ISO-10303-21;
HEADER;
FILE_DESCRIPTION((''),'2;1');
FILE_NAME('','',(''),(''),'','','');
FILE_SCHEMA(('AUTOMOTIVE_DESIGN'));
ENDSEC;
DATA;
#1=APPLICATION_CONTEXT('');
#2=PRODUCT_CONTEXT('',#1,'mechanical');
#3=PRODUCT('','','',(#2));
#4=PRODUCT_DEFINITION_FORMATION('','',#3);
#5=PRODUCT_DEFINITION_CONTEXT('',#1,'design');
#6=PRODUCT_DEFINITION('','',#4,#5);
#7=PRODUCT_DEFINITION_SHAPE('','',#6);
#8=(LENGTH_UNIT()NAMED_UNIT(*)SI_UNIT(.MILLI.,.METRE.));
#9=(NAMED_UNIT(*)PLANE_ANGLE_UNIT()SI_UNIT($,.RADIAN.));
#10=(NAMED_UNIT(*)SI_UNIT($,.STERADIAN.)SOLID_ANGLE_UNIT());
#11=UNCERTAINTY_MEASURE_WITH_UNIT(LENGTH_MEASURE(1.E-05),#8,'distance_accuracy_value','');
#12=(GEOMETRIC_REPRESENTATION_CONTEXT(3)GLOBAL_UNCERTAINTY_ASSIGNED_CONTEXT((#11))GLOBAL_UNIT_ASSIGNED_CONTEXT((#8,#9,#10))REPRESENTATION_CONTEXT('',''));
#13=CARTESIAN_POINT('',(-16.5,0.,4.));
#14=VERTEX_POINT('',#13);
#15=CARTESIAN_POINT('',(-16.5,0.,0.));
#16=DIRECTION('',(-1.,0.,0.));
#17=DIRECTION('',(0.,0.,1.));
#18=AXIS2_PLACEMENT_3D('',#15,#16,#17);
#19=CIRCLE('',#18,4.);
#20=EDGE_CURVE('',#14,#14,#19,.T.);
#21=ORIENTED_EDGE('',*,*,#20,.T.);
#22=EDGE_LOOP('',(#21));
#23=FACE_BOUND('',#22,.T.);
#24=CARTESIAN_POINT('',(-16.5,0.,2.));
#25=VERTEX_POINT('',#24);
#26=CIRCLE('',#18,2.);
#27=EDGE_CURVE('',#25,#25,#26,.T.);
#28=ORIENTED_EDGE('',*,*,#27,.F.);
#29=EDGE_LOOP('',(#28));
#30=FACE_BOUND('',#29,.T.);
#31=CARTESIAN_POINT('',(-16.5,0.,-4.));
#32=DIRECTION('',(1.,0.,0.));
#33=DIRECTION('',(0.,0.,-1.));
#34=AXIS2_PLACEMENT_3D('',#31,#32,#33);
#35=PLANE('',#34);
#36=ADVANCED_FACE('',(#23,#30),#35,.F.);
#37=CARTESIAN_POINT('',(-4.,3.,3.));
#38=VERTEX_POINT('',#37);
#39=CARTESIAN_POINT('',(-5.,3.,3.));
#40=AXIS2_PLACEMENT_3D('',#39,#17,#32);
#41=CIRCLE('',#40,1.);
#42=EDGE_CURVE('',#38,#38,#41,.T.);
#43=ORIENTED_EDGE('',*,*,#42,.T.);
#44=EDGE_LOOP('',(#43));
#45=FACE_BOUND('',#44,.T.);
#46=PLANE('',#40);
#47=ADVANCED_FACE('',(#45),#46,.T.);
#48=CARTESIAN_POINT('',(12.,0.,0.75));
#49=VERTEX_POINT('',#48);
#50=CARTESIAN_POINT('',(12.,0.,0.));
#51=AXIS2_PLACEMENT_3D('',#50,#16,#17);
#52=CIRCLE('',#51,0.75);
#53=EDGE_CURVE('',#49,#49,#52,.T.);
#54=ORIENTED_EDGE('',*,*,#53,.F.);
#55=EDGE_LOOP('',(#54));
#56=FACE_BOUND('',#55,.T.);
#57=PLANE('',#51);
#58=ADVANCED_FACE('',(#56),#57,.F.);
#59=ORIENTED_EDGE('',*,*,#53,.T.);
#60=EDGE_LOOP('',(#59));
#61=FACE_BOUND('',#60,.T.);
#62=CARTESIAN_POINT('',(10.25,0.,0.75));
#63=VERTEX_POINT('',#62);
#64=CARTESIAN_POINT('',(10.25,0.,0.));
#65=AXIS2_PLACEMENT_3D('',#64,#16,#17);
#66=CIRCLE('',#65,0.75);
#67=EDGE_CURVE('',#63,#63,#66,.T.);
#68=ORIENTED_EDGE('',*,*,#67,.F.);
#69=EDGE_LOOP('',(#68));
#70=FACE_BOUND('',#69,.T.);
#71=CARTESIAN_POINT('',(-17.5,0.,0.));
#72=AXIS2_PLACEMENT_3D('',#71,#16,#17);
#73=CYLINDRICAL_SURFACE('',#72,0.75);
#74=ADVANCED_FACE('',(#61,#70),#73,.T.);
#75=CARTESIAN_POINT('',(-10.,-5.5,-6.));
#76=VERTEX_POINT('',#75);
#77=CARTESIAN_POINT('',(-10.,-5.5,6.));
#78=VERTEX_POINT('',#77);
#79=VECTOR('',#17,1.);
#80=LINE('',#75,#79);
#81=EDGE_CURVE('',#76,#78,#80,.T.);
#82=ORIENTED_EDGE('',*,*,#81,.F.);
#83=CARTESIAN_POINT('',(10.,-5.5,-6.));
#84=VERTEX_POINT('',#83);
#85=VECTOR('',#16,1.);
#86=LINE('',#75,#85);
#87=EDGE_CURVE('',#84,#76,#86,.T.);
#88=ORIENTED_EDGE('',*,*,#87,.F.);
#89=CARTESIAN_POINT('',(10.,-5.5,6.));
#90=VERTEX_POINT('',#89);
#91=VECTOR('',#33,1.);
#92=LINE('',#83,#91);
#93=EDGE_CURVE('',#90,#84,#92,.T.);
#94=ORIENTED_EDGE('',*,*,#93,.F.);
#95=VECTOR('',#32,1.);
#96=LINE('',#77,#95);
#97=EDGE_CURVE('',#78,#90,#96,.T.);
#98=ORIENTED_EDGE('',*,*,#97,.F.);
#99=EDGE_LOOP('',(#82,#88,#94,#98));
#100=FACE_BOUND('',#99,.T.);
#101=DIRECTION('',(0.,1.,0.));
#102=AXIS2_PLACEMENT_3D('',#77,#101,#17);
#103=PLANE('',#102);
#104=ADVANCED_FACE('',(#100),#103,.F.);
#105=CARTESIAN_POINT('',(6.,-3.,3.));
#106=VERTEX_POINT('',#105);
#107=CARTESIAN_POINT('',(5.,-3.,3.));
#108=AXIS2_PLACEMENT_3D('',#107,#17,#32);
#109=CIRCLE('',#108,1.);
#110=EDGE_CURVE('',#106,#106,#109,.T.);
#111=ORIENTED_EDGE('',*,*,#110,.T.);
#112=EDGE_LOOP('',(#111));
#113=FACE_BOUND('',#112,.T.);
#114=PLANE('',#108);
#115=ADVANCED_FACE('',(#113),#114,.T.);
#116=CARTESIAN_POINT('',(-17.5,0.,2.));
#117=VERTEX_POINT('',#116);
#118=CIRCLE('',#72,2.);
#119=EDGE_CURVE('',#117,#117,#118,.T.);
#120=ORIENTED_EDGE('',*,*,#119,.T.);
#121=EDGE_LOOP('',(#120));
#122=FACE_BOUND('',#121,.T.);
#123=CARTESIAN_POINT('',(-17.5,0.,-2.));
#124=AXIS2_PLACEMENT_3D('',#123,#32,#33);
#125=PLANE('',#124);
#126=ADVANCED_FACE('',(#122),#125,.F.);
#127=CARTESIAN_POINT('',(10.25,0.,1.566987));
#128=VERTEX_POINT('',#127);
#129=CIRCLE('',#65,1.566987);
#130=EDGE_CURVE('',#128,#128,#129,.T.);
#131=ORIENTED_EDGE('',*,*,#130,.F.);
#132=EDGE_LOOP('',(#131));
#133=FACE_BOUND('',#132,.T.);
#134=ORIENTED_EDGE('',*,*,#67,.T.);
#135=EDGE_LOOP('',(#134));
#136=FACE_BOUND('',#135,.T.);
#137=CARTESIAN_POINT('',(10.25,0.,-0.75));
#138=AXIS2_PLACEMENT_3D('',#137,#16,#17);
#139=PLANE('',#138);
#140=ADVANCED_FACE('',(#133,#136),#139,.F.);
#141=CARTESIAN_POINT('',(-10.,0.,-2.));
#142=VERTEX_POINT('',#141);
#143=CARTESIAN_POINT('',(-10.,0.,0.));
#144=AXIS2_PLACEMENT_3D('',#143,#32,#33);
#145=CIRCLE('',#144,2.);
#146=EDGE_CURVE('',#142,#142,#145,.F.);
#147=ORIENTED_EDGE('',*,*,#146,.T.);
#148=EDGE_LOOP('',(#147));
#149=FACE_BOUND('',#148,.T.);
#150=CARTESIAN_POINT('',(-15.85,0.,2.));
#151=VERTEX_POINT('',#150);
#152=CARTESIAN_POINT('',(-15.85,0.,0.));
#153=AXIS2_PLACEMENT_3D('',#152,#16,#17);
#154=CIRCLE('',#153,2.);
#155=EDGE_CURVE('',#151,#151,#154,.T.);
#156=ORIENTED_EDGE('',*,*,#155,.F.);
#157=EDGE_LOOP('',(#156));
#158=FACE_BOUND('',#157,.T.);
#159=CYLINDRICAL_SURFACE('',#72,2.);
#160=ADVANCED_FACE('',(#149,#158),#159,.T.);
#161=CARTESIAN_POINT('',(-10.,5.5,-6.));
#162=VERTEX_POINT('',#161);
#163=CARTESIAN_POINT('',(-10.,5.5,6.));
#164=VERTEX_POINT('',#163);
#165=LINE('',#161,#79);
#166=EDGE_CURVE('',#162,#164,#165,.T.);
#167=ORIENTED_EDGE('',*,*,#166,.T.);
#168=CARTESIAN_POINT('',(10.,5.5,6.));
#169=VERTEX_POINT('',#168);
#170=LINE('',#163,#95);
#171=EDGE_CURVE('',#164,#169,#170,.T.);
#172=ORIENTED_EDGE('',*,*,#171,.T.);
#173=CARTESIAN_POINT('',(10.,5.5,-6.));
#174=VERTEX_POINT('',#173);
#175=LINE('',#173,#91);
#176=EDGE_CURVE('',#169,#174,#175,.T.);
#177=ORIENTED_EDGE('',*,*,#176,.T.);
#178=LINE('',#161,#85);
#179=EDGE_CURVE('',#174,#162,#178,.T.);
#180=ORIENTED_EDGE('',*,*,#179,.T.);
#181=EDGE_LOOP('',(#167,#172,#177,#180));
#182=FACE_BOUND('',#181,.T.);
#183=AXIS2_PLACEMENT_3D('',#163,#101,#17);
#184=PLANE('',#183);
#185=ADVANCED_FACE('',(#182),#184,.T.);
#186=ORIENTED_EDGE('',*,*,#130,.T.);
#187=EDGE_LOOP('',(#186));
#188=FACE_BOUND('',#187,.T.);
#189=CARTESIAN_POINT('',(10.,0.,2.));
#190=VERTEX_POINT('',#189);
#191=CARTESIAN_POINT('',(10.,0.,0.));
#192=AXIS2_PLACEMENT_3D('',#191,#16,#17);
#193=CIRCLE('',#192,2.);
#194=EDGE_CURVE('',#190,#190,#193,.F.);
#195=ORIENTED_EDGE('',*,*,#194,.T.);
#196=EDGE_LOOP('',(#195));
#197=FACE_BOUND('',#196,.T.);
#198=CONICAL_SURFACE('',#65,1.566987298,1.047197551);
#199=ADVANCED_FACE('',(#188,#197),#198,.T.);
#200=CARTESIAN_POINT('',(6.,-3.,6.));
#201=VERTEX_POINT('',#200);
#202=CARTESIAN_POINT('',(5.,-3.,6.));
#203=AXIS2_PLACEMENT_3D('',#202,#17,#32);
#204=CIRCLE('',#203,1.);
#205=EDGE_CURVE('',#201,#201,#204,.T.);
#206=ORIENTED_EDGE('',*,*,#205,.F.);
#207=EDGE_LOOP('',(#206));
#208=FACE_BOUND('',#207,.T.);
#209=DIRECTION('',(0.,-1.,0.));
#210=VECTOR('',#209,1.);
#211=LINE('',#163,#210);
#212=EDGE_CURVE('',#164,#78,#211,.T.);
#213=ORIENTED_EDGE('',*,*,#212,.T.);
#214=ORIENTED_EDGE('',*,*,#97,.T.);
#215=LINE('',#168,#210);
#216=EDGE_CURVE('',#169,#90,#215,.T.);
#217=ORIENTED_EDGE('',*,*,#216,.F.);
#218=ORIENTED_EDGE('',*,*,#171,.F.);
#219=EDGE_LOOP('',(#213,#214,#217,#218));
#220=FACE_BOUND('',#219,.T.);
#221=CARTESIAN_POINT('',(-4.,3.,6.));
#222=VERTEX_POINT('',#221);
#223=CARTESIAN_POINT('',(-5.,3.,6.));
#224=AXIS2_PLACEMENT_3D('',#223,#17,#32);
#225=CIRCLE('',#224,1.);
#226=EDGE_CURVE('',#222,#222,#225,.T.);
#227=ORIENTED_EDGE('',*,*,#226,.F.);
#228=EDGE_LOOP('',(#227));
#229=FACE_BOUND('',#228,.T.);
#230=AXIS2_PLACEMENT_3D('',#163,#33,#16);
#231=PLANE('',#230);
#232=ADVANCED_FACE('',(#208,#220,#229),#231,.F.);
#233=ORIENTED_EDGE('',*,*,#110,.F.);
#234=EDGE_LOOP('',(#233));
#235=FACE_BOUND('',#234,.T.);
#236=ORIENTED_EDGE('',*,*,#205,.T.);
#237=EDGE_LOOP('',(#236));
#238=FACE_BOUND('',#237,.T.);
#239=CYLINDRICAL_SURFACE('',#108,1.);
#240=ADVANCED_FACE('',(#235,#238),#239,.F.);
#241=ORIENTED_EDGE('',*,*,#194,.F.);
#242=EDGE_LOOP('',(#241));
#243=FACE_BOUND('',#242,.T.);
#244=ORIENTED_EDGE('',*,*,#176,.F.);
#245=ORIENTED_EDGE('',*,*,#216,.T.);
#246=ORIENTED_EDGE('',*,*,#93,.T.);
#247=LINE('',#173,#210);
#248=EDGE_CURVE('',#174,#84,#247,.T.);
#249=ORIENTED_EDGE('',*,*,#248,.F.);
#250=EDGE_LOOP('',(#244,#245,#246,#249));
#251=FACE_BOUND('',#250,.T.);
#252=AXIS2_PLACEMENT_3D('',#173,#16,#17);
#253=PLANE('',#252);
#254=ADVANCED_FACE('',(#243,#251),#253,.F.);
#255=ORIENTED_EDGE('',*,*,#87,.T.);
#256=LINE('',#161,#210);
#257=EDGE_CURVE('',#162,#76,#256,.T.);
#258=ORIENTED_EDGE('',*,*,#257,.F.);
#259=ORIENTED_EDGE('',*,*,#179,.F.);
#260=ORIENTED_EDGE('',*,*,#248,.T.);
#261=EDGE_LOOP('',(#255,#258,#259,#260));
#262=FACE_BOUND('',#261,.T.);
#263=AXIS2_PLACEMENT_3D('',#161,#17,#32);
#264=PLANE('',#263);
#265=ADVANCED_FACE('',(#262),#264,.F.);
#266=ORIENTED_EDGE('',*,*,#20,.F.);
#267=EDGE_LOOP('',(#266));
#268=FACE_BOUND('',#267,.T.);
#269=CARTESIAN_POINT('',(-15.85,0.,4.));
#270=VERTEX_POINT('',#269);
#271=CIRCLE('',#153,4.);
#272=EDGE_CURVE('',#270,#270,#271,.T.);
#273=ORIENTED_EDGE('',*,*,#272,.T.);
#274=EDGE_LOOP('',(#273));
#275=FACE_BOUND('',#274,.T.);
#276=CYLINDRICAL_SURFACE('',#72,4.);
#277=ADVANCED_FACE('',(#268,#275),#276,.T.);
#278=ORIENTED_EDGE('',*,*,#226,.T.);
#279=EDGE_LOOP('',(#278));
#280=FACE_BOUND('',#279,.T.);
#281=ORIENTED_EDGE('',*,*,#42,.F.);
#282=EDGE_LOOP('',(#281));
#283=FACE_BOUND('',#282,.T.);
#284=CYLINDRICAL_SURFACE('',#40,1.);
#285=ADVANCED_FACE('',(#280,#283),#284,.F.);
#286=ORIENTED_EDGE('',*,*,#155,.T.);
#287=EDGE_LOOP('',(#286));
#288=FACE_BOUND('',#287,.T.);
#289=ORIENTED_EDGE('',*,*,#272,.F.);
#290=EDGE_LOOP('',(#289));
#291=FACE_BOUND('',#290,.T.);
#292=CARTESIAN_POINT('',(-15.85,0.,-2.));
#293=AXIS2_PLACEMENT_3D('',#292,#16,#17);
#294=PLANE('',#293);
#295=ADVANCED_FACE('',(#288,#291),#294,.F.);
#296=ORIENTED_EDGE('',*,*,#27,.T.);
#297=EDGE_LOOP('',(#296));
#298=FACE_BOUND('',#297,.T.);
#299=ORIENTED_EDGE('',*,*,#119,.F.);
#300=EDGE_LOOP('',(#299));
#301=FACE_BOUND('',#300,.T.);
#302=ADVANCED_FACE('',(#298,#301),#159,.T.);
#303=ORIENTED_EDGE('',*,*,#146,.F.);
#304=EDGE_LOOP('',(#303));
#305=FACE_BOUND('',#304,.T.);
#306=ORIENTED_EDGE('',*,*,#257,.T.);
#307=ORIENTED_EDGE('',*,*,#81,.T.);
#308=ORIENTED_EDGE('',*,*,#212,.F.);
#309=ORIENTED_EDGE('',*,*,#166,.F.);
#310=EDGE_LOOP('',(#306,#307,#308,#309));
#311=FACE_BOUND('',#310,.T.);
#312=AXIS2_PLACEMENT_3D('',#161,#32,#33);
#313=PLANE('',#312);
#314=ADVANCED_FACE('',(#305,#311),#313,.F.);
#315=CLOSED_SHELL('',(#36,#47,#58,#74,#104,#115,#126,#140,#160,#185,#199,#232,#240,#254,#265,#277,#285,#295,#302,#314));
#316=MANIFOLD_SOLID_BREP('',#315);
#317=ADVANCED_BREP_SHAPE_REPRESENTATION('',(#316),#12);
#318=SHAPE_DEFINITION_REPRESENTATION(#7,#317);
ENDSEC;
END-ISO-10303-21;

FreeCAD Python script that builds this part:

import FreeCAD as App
import Part
import Sketcher
from FreeCAD import Vector
Q = App.Units.Quantity


def add_polygon(sketch, points):
    """Adds a closed chain of lines whose ends are joined by coincident constraints."""
    first, n = sketch.GeometryCount, len(points)
    for a, b in zip(points, points[1:] + points[:1]):
        sketch.addGeometry(Part.LineSegment(App.Vector(*a, 0), App.Vector(*b, 0)), False)
    for i in range(n):
        sketch.addConstraint(Sketcher.Constraint("Coincident", first + i, 2, first + (i + 1) % n, 1))

doc = App.newDocument("Part")
body = doc.addObject("PartDesign::Body", "Body")

# Sketch on XZ plane
sketch1 = body.newObject("Sketcher::SketchObject", "Sketch")
sketch1.AttachmentSupport = (doc.getObject("XZ_Plane"), [""])
sketch1.MapMode = "FlatFace"
add_polygon(sketch1, [(-10, -6), (-10, 6), (10, 6), (10, -6)])  # lines 0-3
sketch1.addConstraint(Sketcher.Constraint("Vertical", 0))
sketch1.addConstraint(Sketcher.Constraint("Horizontal", 1))
sketch1.addConstraint(Sketcher.Constraint("Vertical", 2))
sketch1.addConstraint(Sketcher.Constraint("Horizontal", 3))
sketch1.addConstraint(Sketcher.Constraint("Symmetric", 0, 2, 2, 2, -1, 1))
sketch1.addConstraint(Sketcher.Constraint("DistanceX", 1, 1, 1, 2, 20.0))
sketch1.addConstraint(Sketcher.Constraint("DistanceY", 0, 1, 0, 2, 12.0))
pad1 = body.newObject("PartDesign::Pad", "Pad")
pad1.Profile = sketch1
pad1.Length = 11
pad1.Midplane = True

# Sketch on XY plane
sketch2 = body.newObject("Sketcher::SketchObject", "Sketch001")
sketch2.AttachmentSupport = (doc.getObject("XY_Plane"), [""])
sketch2.MapMode = "FlatFace"
sketch2.AttachmentOffset = App.Placement(Vector(0, 0, 6), App.Rotation())
sketch2.addGeometry(Part.Circle(Vector(5, -3, 0), Vector(0, 0, 1), 1), False)
sketch2.addGeometry(Part.Circle(Vector(-5, 3, 0), Vector(0, 0, 1), 1), False)
sketch2.addConstraint(Sketcher.Constraint("Equal", 0, 1))
sketch2.addConstraint(Sketcher.Constraint("Symmetric", 0, 3, 1, 3, -1, 1))
sketch2.addConstraint(Sketcher.Constraint("Diameter", 0, 2.0))
sketch2.addConstraint(Sketcher.Constraint("DistanceX", -1, 1, 0, 3, 5.0))
sketch2.addConstraint(Sketcher.Constraint("DistanceY", 0, 3, -1, 1, 3.0))
pocket1 = body.newObject("PartDesign::Pocket", "Pocket")
pocket1.Profile = sketch2
pocket1.Length = 3

# Sketch on XZ plane
sketch3 = body.newObject("Sketcher::SketchObject", "Sketch002")
sketch3.AttachmentSupport = (doc.getObject("XZ_Plane"), [""])
sketch3.MapMode = "FlatFace"
add_polygon(sketch3, [(12, 0), (12, -0.8), (10.2, -0.8), (10.2, -1.6), (10, -2), (-15.8, -2), (-15.8, -4), (-16.5, -4), (-16.5, -2), (-17.5, -2), (-17.5, 0)])  # lines 0-10
sketch3.addConstraint(Sketcher.Constraint("Vertical", 0))
sketch3.addConstraint(Sketcher.Constraint("Horizontal", 1))
sketch3.addConstraint(Sketcher.Constraint("Vertical", 2))
sketch3.addConstraint(Sketcher.Constraint("Horizontal", 4))
sketch3.addConstraint(Sketcher.Constraint("Vertical", 5))
sketch3.addConstraint(Sketcher.Constraint("Horizontal", 6))
sketch3.addConstraint(Sketcher.Constraint("Vertical", 7))
sketch3.addConstraint(Sketcher.Constraint("Horizontal", 8))
sketch3.addConstraint(Sketcher.Constraint("Vertical", 9))
sketch3.addConstraint(Sketcher.Constraint("Horizontal", 10))
sketch3.addConstraint(Sketcher.Constraint("PointOnObject", 9, 2, -1))
sketch3.addConstraint(Sketcher.Constraint("Horizontal", 4, 2, 7, 2))
sketch3.addConstraint(Sketcher.Constraint("Equal", 7, 9))
sketch3.addConstraint(Sketcher.Constraint("DistanceX", 8, 2, 8, 1, 1.0))
sketch3.addConstraint(Sketcher.Constraint("DistanceY", 5, 2, 5, 1, 2.0))
sketch3.addConstraint(Sketcher.Constraint("Angle", 3, Q("-120 deg")))
sketch3.addConstraint(Sketcher.Constraint("DistanceX", 10, 1, 10, 2, 29.5))
sketch3.addConstraint(Sketcher.Constraint("DistanceX", -1, 1, 0, 2, 12.0))
sketch3.addConstraint(Sketcher.Constraint("DistanceX", -1, 1, 3, 2, 10.0))
sketch3.addConstraint(Sketcher.Constraint("Distance", 3, 0.5))
sketch3.addConstraint(Sketcher.Constraint("DistanceX", 4, 2, 4, 1, 25.85))
sketch3.addConstraint(Sketcher.Constraint("DistanceY", 0, 2, 0, 1, 0.75))
revolution = body.newObject("PartDesign::Revolution", "Revolution")
revolution.Profile = sketch3
revolution.ReferenceAxis = (sketch3, ["H_Axis"])
revolution.Angle = 360

doc.recompute()
